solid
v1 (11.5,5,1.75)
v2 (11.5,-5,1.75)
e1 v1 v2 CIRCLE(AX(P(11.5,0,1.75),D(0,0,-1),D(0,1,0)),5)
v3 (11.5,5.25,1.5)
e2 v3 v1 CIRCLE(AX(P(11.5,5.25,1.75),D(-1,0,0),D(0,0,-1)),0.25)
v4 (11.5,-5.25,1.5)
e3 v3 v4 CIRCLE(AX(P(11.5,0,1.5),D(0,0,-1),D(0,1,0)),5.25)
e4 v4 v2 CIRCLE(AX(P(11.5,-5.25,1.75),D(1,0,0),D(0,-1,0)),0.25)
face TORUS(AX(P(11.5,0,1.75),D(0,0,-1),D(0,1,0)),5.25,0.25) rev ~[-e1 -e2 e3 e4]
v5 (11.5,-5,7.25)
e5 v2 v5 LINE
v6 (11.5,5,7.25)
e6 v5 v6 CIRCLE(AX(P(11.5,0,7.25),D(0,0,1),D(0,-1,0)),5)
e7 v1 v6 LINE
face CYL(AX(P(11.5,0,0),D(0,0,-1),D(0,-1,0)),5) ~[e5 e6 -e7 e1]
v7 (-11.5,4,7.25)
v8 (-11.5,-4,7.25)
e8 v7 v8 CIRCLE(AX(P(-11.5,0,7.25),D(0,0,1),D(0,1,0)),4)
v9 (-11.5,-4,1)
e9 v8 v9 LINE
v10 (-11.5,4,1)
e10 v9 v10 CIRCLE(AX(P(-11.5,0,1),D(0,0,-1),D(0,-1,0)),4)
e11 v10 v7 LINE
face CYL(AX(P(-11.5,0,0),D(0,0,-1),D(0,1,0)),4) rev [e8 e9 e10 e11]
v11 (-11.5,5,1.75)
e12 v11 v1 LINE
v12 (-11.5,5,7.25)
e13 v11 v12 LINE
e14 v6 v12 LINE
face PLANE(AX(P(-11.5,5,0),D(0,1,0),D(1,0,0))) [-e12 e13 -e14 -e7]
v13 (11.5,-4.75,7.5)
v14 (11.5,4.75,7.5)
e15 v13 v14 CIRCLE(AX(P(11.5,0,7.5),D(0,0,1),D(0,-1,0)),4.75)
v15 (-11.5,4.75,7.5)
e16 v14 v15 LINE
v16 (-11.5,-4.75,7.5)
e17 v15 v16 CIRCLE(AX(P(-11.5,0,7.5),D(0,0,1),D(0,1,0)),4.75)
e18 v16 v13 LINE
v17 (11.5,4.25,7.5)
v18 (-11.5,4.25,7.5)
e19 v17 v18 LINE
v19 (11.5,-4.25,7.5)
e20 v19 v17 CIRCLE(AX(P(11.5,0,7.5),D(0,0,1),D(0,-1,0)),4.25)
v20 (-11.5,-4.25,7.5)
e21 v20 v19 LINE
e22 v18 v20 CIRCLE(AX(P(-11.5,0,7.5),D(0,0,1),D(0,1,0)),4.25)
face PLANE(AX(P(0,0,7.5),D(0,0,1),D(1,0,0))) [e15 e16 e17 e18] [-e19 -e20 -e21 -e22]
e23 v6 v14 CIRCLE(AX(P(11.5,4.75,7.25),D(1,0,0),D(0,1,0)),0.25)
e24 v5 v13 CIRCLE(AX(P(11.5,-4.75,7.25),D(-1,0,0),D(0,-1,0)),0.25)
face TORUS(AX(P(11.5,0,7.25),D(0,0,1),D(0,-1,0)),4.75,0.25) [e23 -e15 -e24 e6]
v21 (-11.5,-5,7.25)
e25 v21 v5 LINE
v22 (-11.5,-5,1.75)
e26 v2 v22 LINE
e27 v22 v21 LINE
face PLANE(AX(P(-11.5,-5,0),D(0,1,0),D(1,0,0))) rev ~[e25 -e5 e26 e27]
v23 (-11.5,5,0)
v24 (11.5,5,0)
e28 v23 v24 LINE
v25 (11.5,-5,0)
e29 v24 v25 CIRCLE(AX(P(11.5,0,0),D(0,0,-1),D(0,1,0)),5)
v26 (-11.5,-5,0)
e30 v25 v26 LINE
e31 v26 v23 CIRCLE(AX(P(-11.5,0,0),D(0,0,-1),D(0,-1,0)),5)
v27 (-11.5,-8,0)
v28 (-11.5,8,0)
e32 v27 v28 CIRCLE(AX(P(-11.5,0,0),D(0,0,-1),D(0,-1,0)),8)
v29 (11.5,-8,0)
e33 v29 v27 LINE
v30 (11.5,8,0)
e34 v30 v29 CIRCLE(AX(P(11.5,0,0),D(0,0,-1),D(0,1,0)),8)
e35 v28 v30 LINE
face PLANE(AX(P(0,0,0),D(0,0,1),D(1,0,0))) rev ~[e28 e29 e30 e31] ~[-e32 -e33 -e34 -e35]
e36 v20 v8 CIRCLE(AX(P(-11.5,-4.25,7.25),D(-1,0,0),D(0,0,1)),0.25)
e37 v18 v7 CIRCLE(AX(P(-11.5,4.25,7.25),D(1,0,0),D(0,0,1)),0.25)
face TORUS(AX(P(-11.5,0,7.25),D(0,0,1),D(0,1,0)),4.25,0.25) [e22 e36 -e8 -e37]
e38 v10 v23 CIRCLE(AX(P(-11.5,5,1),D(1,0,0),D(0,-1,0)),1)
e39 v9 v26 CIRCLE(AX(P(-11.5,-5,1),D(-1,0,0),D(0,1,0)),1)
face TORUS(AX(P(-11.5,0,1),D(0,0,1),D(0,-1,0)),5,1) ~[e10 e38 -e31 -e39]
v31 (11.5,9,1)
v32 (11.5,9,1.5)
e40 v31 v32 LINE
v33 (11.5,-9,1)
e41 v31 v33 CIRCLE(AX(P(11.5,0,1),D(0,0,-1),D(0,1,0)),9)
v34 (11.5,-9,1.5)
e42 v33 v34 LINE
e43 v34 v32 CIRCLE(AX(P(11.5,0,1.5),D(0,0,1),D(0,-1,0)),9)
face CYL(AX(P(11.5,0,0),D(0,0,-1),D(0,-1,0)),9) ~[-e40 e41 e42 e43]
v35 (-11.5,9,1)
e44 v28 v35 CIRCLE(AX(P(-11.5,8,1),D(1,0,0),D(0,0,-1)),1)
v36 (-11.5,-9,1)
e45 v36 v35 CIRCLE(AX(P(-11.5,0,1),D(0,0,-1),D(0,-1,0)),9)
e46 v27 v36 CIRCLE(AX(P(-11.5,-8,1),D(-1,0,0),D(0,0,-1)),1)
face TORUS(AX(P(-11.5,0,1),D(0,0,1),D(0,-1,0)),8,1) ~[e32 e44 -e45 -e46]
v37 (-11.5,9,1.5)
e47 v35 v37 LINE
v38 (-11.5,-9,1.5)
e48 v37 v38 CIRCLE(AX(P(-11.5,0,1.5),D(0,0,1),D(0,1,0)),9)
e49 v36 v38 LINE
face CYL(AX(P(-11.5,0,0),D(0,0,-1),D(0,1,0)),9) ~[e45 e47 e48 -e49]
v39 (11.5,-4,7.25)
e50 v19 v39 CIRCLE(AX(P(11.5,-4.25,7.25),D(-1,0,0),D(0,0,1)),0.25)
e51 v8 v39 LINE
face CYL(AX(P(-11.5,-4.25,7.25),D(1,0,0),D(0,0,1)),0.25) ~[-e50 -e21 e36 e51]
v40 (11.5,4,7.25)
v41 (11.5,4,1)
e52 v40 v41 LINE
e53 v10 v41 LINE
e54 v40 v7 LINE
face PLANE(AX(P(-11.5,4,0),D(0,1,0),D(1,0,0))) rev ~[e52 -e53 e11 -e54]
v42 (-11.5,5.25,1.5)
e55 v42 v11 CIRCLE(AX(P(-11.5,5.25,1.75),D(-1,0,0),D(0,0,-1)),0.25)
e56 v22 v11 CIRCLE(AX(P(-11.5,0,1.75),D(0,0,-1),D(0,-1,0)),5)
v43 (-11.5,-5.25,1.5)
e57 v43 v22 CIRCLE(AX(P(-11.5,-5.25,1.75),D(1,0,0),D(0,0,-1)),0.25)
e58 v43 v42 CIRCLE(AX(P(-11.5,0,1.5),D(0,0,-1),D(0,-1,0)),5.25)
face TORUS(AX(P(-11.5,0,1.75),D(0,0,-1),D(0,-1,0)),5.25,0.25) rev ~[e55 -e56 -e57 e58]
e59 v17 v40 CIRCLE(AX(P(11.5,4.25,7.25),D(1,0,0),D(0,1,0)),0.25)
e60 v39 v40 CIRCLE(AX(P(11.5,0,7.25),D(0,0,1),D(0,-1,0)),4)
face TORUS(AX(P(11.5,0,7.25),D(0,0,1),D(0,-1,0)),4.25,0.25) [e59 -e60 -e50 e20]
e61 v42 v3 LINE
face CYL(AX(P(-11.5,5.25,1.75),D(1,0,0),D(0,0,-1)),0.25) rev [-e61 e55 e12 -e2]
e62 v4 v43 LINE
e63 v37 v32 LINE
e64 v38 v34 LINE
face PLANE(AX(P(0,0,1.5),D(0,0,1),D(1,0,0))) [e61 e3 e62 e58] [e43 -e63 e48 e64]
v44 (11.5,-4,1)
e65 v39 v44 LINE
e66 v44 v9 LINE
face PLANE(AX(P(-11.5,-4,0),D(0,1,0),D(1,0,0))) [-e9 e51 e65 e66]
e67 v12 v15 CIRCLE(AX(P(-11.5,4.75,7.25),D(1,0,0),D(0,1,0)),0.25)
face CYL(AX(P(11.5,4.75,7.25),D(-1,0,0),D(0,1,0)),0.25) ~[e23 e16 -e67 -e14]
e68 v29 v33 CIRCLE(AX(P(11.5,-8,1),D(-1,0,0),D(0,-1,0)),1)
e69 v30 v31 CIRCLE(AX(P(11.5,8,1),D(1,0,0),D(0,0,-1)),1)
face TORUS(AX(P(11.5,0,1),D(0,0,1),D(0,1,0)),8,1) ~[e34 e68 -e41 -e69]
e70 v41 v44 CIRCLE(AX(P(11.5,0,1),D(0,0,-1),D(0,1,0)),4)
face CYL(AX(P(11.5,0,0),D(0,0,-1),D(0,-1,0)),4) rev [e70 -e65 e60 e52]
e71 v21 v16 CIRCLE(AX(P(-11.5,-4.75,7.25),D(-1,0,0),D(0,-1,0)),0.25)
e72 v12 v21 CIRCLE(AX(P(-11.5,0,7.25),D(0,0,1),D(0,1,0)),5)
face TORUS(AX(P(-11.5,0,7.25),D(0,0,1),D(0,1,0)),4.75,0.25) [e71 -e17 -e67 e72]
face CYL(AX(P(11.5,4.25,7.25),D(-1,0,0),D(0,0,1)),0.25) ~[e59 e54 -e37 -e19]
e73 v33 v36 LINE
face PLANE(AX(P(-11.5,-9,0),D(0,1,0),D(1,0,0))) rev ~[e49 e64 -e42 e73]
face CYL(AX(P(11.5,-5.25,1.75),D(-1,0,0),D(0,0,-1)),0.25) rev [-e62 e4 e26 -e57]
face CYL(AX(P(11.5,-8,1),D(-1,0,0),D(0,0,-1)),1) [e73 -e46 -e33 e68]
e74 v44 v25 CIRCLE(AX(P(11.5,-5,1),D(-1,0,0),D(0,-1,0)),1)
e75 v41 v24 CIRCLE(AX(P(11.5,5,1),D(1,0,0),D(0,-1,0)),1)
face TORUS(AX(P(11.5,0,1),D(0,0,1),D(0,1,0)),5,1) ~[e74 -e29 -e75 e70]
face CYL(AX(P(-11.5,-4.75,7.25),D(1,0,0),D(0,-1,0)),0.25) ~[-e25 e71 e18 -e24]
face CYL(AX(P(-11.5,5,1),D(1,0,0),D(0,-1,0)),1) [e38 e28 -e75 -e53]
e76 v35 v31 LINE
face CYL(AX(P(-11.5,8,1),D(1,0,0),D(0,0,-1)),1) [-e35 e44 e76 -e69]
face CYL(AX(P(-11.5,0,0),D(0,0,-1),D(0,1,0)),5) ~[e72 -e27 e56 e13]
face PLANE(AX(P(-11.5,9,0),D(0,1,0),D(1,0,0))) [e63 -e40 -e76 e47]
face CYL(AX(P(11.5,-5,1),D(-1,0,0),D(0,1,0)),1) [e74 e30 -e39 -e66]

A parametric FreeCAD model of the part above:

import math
import FreeCAD as App
import Part
import Sketcher
from FreeCAD import Vector


def edges_at(feature, points):
    """Names of the edges that pass closest to the given points."""
    edges = feature.Shape.Edges
    near = lambda p: min(range(len(edges)), key=lambda i: edges[i].distToShape(Part.Vertex(*p))[0])
    return sorted({f"Edge{near(p) + 1}" for p in points})

doc = App.newDocument("Part")
params = doc.addObject("Spreadsheet::Sheet", "Params")
for row, (alias, value) in enumerate([
    ("sketch1_radius", "5 mm"),
    ("sketch1_radius2", "4 mm"),
    ("sketch1_width", "23 mm"),
    ("pad1_length", "7.5 mm"),
    ("sketch2_radius", "9 mm"),
    ("sketch2_radius2", "4 mm"),
    ("sketch2_width", "23 mm"),
    ("pad2_length", "1.5 mm"),
    ("fillet_radius", "1 mm"),
    ("fillet2_radius", "0.25 mm"),
    ("fillet3_radius", "0.25 mm"),
], start=1):
    params.set(f"A{row}", alias)
    params.set(f"B{row}", "=" + value)
    params.setAlias(f"B{row}", alias)

body = doc.addObject("PartDesign::Body", "Body")

sketch1 = body.newObject("Sketcher::SketchObject", "Sketch")
sketch1.AttachmentSupport = (doc.getObject("XY_Plane"), [""])
sketch1.MapMode = "FlatFace"
sketch1.addGeometry([
    Part.ArcOfCircle(Part.Circle(Vector(-11.5, 0, 0), Vector(0, 0, 1), 5), math.radians(90), math.radians(270)),
    Part.LineSegment(Vector(-11.5, -5, 0), Vector(11.5, -5, 0)),
    Part.ArcOfCircle(Part.Circle(Vector(11.5, 0, 0), Vector(0, 0, 1), 5), math.radians(-90), math.radians(90)),
    Part.LineSegment(Vector(11.5, 5, 0), Vector(-11.5, 5, 0)),
    Part.ArcOfCircle(Part.Circle(Vector(-11.5, 0, 0), Vector(0, 0, 1), 4), math.radians(90), math.radians(270)),
    Part.LineSegment(Vector(-11.5, 4, 0), Vector(11.5, 4, 0)),
    Part.ArcOfCircle(Part.Circle(Vector(11.5, 0, 0), Vector(0, 0, 1), 4), math.radians(-90), math.radians(90)),
    Part.LineSegment(Vector(11.5, -4, 0), Vector(-11.5, -4, 0)),
], False)
sketch1.addConstraint([
    Sketcher.Constraint("Tangent", 0, 2, 1, 1),
    Sketcher.Constraint("Tangent", 1, 2, 2, 1),
    Sketcher.Constraint("Tangent", 2, 2, 3, 1),
    Sketcher.Constraint("Tangent", 3, 2, 0, 1),
    Sketcher.Constraint("Tangent", 4, 1, 5, 1),
    Sketcher.Constraint("Tangent", 5, 2, 6, 2),
    Sketcher.Constraint("Tangent", 6, 1, 7, 1),
    Sketcher.Constraint("Tangent", 7, 2, 4, 2),
    Sketcher.Constraint("Horizontal", 1),
    Sketcher.Constraint("Horizontal", 3),
    Sketcher.Constraint("Horizontal", 5),
    Sketcher.Constraint("Horizontal", 7),
    Sketcher.Constraint("Coincident", 4, 3, 0, 3),
    Sketcher.Constraint("Symmetric", 0, 3, 2, 3, -1, 1),
    Sketcher.Constraint("Vertical", 6, 3, 1, 2),
    Sketcher.Constraint("Radius", 0, 5.0),
    Sketcher.Constraint("Radius", 4, 4.0),
    Sketcher.Constraint("DistanceX", 1, 1, 1, 2, 23.0),
])
sketch1.setExpression("Constraints[15]", "Params.sketch1_radius")
sketch1.setExpression("Constraints[16]", "Params.sketch1_radius2")
sketch1.setExpression("Constraints[17]", "Params.sketch1_width")
pad1 = body.newObject("PartDesign::Pad", "Pad")
pad1.Profile = sketch1
pad1.setExpression("Length", "Params.pad1_length")

sketch2 = body.newObject("Sketcher::SketchObject", "Sketch001")
sketch2.AttachmentSupport = (doc.getObject("XY_Plane"), [""])
sketch2.MapMode = "FlatFace"
sketch2.addGeometry([
    Part.ArcOfCircle(Part.Circle(Vector(-11.5, 0, 0), Vector(0, 0, 1), 9), math.radians(90), math.radians(270)),
    Part.LineSegment(Vector(-11.5, -9, 0), Vector(11.5, -9, 0)),
    Part.ArcOfCircle(Part.Circle(Vector(11.5, 0, 0), Vector(0, 0, 1), 9), math.radians(-90), math.radians(90)),
    Part.LineSegment(Vector(11.5, 9, 0), Vector(-11.5, 9, 0)),
    Part.ArcOfCircle(Part.Circle(Vector(-11.5, 0, 0), Vector(0, 0, 1), 4), math.radians(90), math.radians(270)),
    Part.LineSegment(Vector(-11.5, 4, 0), Vector(11.5, 4, 0)),
    Part.ArcOfCircle(Part.Circle(Vector(11.5, 0, 0), Vector(0, 0, 1), 4), math.radians(-90), math.radians(90)),
    Part.LineSegment(Vector(11.5, -4, 0), Vector(-11.5, -4, 0)),
], False)
sketch2.addConstraint([
    Sketcher.Constraint("Tangent", 0, 2, 1, 1),
    Sketcher.Constraint("Tangent", 1, 2, 2, 1),
    Sketcher.Constraint("Tangent", 2, 2, 3, 1),
    Sketcher.Constraint("Tangent", 3, 2, 0, 1),
    Sketcher.Constraint("Tangent", 4, 1, 5, 1),
    Sketcher.Constraint("Tangent", 5, 2, 6, 2),
    Sketcher.Constraint("Tangent", 6, 1, 7, 1),
    Sketcher.Constraint("Tangent", 7, 2, 4, 2),
    Sketcher.Constraint("Horizontal", 1),
    Sketcher.Constraint("Horizontal", 3),
    Sketcher.Constraint("Horizontal", 5),
    Sketcher.Constraint("Horizontal", 7),
    Sketcher.Constraint("Coincident", 4, 3, 0, 3),
    Sketcher.Constraint("Symmetric", 0, 3, 2, 3, -1, 1),
    Sketcher.Constraint("Vertical", 6, 3, 1, 2),
    Sketcher.Constraint("Radius", 0, 9.0),
    Sketcher.Constraint("Radius", 4, 4.0),
    Sketcher.Constraint("DistanceX", 1, 1, 1, 2, 23.0),
])
sketch2.setExpression("Constraints[15]", "Params.sketch2_radius")
sketch2.setExpression("Constraints[16]", "Params.sketch2_radius2")
sketch2.setExpression("Constraints[17]", "Params.sketch2_width")
pad2 = body.newObject("PartDesign::Pad", "Pad001")
pad2.Profile = sketch2
pad2.setExpression("Length", "Params.pad2_length")
doc.recompute()

fillet = body.newObject("PartDesign::Fillet", "Fillet")
fillet.Base = (pad2, edges_at(pad2, [(0, 9, 0), (0, 4, 0)]))
fillet.setExpression("Radius", "Params.fillet_radius")
doc.recompute()

fillet2 = body.newObject("PartDesign::Fillet", "Fillet001")
fillet2.Base = (fillet, edges_at(fillet, [(0, -5, 7.5), (0, -4, 7.5)]))
fillet2.setExpression("Radius", "Params.fillet2_radius")
doc.recompute()

fillet3 = body.newObject("PartDesign::Fillet", "Fillet002")
fillet3.Base = (fillet2, edges_at(fillet2, [(0, 5, 1.5)]))
fillet3.setExpression("Radius", "Params.fillet3_radius")

doc.recompute()
